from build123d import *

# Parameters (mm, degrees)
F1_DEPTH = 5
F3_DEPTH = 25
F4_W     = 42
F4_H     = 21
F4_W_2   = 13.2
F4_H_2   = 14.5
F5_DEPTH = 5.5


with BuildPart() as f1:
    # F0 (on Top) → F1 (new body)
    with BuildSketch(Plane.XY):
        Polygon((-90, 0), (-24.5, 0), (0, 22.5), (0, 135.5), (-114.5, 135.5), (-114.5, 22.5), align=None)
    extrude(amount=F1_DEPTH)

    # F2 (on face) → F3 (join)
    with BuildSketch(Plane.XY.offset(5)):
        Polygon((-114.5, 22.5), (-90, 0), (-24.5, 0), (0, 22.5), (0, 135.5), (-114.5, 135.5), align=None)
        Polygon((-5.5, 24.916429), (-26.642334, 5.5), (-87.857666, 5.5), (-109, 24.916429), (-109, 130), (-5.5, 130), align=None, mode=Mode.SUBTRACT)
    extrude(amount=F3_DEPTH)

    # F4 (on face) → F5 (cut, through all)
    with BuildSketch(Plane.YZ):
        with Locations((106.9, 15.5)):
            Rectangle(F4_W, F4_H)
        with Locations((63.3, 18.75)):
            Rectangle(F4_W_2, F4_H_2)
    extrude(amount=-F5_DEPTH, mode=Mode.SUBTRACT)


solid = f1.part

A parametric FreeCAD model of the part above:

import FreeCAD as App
import Part
import Sketcher
from FreeCAD import Vector


def add_polygon(sketch, points):
    """Adds a closed chain of lines whose ends are joined by coincident constraints."""
    first, n = sketch.GeometryCount, len(points)
    for a, b in zip(points, points[1:] + points[:1]):
        sketch.addGeometry(Part.LineSegment(App.Vector(*a, 0), App.Vector(*b, 0)), False)
    for i in range(n):
        sketch.addConstraint(Sketcher.Constraint("Coincident", first + i, 2, first + (i + 1) % n, 1))

doc = App.newDocument("Part")
body = doc.addObject("PartDesign::Body", "Body")

# Sketch on XY plane
sketch1 = body.newObject("Sketcher::SketchObject", "Sketch")
sketch1.AttachmentSupport = (doc.getObject("XY_Plane"), [""])
sketch1.MapMode = "FlatFace"
add_polygon(sketch1, [(-90, 0), (-24, 0), (0, 22), (0, 136), (-114, 136), (-114, 22)])  # lines 0-5
sketch1.addConstraint(Sketcher.Constraint("Horizontal", 0))
sketch1.addConstraint(Sketcher.Constraint("Vertical", 2))
sketch1.addConstraint(Sketcher.Constraint("Horizontal", 3))
sketch1.addConstraint(Sketcher.Constraint("Vertical", 4))
sketch1.addConstraint(Sketcher.Constraint("PointOnObject", 0, 2, -1))
sketch1.addConstraint(Sketcher.Constraint("PointOnObject", 1, 2, -2))
sketch1.addConstraint(Sketcher.Constraint("Horizontal", 1, 2, 4, 2))
sketch1.addConstraint(Sketcher.Constraint("Equal", 1, 5))
sketch1.addConstraint(Sketcher.Constraint("DistanceY", 2, 1, 2, 2, 113.0))
sketch1.addConstraint(Sketcher.Constraint("DistanceX", 0, 1, 0, 2, 65.5))
sketch1.addConstraint(Sketcher.Constraint("DistanceX", 3, 2, 3, 1, 114.5))
sketch1.addConstraint(Sketcher.Constraint("DistanceY", -1, 1, 1, 2, 22.5))
pad1 = body.newObject("PartDesign::Pad", "Pad")
pad1.Profile = sketch1
pad1.Length = 5

# Sketch on XY plane
sketch2 = body.newObject("Sketcher::SketchObject", "Sketch001")
sketch2.AttachmentSupport = (doc.getObject("XY_Plane"), [""])
sketch2.MapMode = "FlatFace"
sketch2.AttachmentOffset = App.Placement(Vector(0, 0, 5), App.Rotation())
add_polygon(sketch2, [(-114, 22), (-90, 0), (-24, 0), (0, 22), (0, 136), (-114, 136)])  # lines 0-5
add_polygon(sketch2, [(-6, 130), (-6, 25), (-27, 6), (-88, 6), (-109, 25), (-109, 130)])  # lines 6-11
sketch2.addConstraint(Sketcher.Constraint("Horizontal", 1))
sketch2.addConstraint(Sketcher.Constraint("Vertical", 3))
sketch2.addConstraint(Sketcher.Constraint("Horizontal", 4))
sketch2.addConstraint(Sketcher.Constraint("Vertical", 5))
sketch2.addConstraint(Sketcher.Constraint("Vertical", 6))
sketch2.addConstraint(Sketcher.Constraint("Horizontal", 8))
sketch2.addConstraint(Sketcher.Constraint("Vertical", 10))
sketch2.addConstraint(Sketcher.Constraint("Horizontal", 11))
sketch2.addConstraint(Sketcher.Constraint("PointOnObject", 0, 2, -1))
sketch2.addConstraint(Sketcher.Constraint("PointOnObject", 2, 2, -2))
sketch2.addConstraint(Sketcher.Constraint("Parallel", 2, 7))
sketch2.addConstraint(Sketcher.Constraint("Parallel", 0, 9))
sketch2.addConstraint(Sketcher.Constraint("Horizontal", 2, 2, 5, 2))
sketch2.addConstraint(Sketcher.Constraint("Horizontal", 6, 2, 9, 2))
sketch2.addConstraint(Sketcher.Constraint("Equal", 0, 2))
sketch2.addConstraint(Sketcher.Constraint("DistanceY", 3, 1, 3, 2, 113.0))
sketch2.addConstraint(Sketcher.Constraint("DistanceX", 1, 1, 1, 2, 65.5))
sketch2.addConstraint(Sketcher.Constraint("DistanceX", 4, 2, 4, 1, 114.5))
sketch2.addConstraint(Sketcher.Constraint("DistanceX", 11, 1, 11, 2, 103.5))
sketch2.addConstraint(Sketcher.Constraint("DistanceX", 9, 2, -1, 1, 109.0))
sketch2.addConstraint(Sketcher.Constraint("DistanceY", -1, 1, 10, 2, 130.0))
sketch2.addConstraint(Sketcher.Constraint("DistanceY", 7, 2, 2, 2, 17.0))
sketch2.addConstraint(Sketcher.Constraint("DistanceY", -1, 1, 2, 2, 22.5))
sketch2.addConstraint(Sketcher.Constraint("DistanceX", 8, 2, 8, 1, 61.215332))
pad2 = body.newObject("PartDesign::Pad", "Pad001")
pad2.Profile = sketch2
pad2.Length = 25

# Sketch on YZ plane
sketch3 = body.newObject("Sketcher::SketchObject", "Sketch002")
sketch3.AttachmentSupport = (doc.getObject("YZ_Plane"), [""])
sketch3.MapMode = "FlatFace"
add_polygon(sketch3, [(86, 26), (86, 5), (128, 5), (128, 26)])  # lines 0-3
add_polygon(sketch3, [(57, 26), (57, 12), (70, 12), (70, 26)])  # lines 4-7
sketch3.addConstraint(Sketcher.Constraint("Vertical", 0))
sketch3.addConstraint(Sketcher.Constraint("Horizontal", 1))
sketch3.addConstraint(Sketcher.Constraint("Vertical", 2))
sketch3.addConstraint(Sketcher.Constraint("Horizontal", 3))
sketch3.addConstraint(Sketcher.Constraint("Vertical", 4))
sketch3.addConstraint(Sketcher.Constraint("Horizontal", 5))
sketch3.addConstraint(Sketcher.Constraint("Vertical", 6))
sketch3.addConstraint(Sketcher.Constraint("Horizontal", 7))
sketch3.addConstraint(Sketcher.Constraint("Horizontal", 3, 2, 6, 2))
sketch3.addConstraint(Sketcher.Constraint("DistanceX", 1, 1, 1, 2, 42.0))
sketch3.addConstraint(Sketcher.Constraint("DistanceY", 0, 2, 0, 1, 21.0))
sketch3.addConstraint(Sketcher.Constraint("DistanceX", 5, 1, 5, 2, 13.2))
sketch3.addConstraint(Sketcher.Constraint("DistanceY", 4, 2, 4, 1, 14.5))
sketch3.addConstraint(Sketcher.Constraint("DistanceY", -1, 1, 0, 2, 5.0))
sketch3.addConstraint(Sketcher.Constraint("DistanceX", 5, 2, 0, 2, 16.0))
sketch3.addConstraint(Sketcher.Constraint("DistanceX", -1, 1, 0, 2, 85.9))
pocket1 = body.newObject("PartDesign::Pocket", "Pocket")
pocket1.Profile = sketch3
pocket1.Length = 5.5

doc.recompute()
